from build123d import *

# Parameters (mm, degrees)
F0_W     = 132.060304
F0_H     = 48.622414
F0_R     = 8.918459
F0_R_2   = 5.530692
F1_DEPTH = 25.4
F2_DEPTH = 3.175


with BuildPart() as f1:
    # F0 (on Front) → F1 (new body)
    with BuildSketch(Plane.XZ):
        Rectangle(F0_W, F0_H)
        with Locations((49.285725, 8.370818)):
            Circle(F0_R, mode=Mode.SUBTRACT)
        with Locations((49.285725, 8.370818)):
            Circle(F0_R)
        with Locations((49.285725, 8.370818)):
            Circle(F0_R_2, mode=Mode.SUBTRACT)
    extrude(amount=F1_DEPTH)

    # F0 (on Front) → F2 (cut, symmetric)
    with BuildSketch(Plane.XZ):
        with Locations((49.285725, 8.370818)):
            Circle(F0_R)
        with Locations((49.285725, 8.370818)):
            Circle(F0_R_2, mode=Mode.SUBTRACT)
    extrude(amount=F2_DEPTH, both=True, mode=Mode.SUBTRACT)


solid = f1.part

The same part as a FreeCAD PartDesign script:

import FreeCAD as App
import Part
import Sketcher

V = App.Vector
Q = App.Units.Quantity


def add_polygon(sketch, points):
    """Adds a closed chain of lines whose ends are joined by coincident constraints."""
    first, n = sketch.GeometryCount, len(points)
    for a, b in zip(points, points[1:] + points[:1]):
        sketch.addGeometry(Part.LineSegment(App.Vector(*a, 0), App.Vector(*b, 0)), False)
    for i in range(n):
        sketch.addConstraint(Sketcher.Constraint("Coincident", first + i, 2, first + (i + 1) % n, 1))

doc = App.newDocument("Part")
body = doc.addObject("PartDesign::Body", "Body")

# Sketch on XZ plane
sketch1 = body.newObject("Sketcher::SketchObject", "Sketch")
sketch1.AttachmentSupport = (doc.getObject("XZ_Plane"), [""])
sketch1.MapMode = "FlatFace"
add_polygon(sketch1, [(-66, 24), (-66, -24), (66, -24), (66, 24)])  # lines 0-3
sketch1.addGeometry(Part.Circle(V(49, 8, 0), V(0, 0, 1), 6), False)  # 4
sketch1.addConstraint([
    Sketcher.Constraint("Vertical", 0),
    Sketcher.Constraint("Horizontal", 1),
    Sketcher.Constraint("Vertical", 2),
    Sketcher.Constraint("Horizontal", 3),
    Sketcher.Constraint("Symmetric", 0, 2, 2, 2, -1, 1),
    Sketcher.Constraint("Diameter", 4, 11.061384),
    Sketcher.Constraint("DistanceX", 1, 1, 1, 2, 132.060304),
    Sketcher.Constraint("DistanceY", 0, 2, 0, 1, 48.622414),
    Sketcher.Constraint("DistanceY", 4, 3, 2, 2, 15.940389),
    Sketcher.Constraint("DistanceX", -1, 1, 4, 3, 49.285725),
])
pad1 = body.newObject("PartDesign::Pad", "Pad")
pad1.Profile = sketch1
pad1.Length = Q("1 in")

# Sketch on XZ plane
sketch2 = body.newObject("Sketcher::SketchObject", "Sketch001")
sketch2.AttachmentSupport = (doc.getObject("XZ_Plane"), [""])
sketch2.MapMode = "FlatFace"
sketch2.addGeometry([
    Part.Circle(V(49, 8, 0), V(0, 0, 1), 9),
    Part.Circle(V(49, 8, 0), V(0, 0, 1), 6),
], False)
sketch2.addConstraint([
    Sketcher.Constraint("Coincident", 1, 3, 0, 3),
    Sketcher.Constraint("Diameter", 0, 17.836918),
    Sketcher.Constraint("Diameter", 1, 11.061384),
    Sketcher.Constraint("DistanceX", -1, 1, 0, 3, 49.285725),
    Sketcher.Constraint("DistanceY", -1, 1, 0, 3, 8.370818),
])
pocket1 = body.newObject("PartDesign::Pocket", "Pocket")
pocket1.Profile = sketch2
pocket1.Length = Q("0.25 in")
pocket1.Midplane = True

doc.recompute()
